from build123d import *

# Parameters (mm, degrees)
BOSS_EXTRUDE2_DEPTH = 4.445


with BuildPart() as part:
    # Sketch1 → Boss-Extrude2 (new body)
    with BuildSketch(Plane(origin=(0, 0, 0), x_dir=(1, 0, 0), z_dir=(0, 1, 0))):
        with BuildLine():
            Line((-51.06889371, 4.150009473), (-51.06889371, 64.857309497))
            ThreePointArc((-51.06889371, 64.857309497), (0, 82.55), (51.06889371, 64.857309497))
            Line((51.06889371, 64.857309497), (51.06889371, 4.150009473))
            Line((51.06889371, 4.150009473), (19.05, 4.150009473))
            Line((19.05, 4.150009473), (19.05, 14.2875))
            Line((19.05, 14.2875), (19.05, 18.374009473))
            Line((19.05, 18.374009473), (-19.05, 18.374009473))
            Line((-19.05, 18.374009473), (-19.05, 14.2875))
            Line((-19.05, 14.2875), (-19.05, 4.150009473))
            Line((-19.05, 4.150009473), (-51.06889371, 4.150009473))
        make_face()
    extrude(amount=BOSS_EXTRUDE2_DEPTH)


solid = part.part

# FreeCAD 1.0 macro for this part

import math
import FreeCAD as App
import Part
import Sketcher

V = App.Vector
Q = App.Units.Quantity

doc = App.newDocument("Part")
body = doc.addObject("PartDesign::Body", "Body")

# Sketch on XZ plane
sketch1 = body.newObject("Sketcher::SketchObject", "Sketch")
sketch1.AttachmentSupport = (doc.getObject("XZ_Plane"), [""])
sketch1.MapMode = "FlatFace"
sketch1.addGeometry([
    Part.LineSegment(V(-51, -65, 0), V(-51, -4, 0)),  # 0
    Part.LineSegment(V(-51, -4, 0), V(-19, -4, 0)),  # 1
    Part.LineSegment(V(-19, -4, 0), V(-19, -18, 0)),  # 2
    Part.LineSegment(V(-19, -18, 0), V(19, -18, 0)),  # 3
    Part.LineSegment(V(19, -18, 0), V(19, -4, 0)),  # 4
    Part.LineSegment(V(19, -4, 0), V(51, -4, 0)),  # 5
    Part.LineSegment(V(51, -4, 0), V(51, -65, 0)),  # 6
    Part.ArcOfCircle(Part.Circle(V(0, 0, 0), V(0, 0, 1), 83), math.radians(-128), math.radians(-52)),  # 7
], False)
sketch1.addConstraint([
    Sketcher.Constraint("Coincident", 0, 2, 1, 1),
    Sketcher.Constraint("Coincident", 1, 2, 2, 1),
    Sketcher.Constraint("Coincident", 2, 2, 3, 1),
    Sketcher.Constraint("Coincident", 3, 2, 4, 1),
    Sketcher.Constraint("Coincident", 4, 2, 5, 1),
    Sketcher.Constraint("Coincident", 5, 2, 6, 1),
    Sketcher.Constraint("Coincident", 6, 2, 7, 2),
    Sketcher.Constraint("Coincident", 7, 1, 0, 1),
    Sketcher.Constraint("Vertical", 0),
    Sketcher.Constraint("Horizontal", 1),
    Sketcher.Constraint("Vertical", 2),
    Sketcher.Constraint("Horizontal", 3),
    Sketcher.Constraint("Vertical", 4),
    Sketcher.Constraint("Horizontal", 5),
    Sketcher.Constraint("Vertical", 6),
    Sketcher.Constraint("Coincident", 7, 3, -1, 1),
    Sketcher.Constraint("Symmetric", 1, 2, 4, 2, -2),
    Sketcher.Constraint("Horizontal", 6, 2, 7, 1),
    Sketcher.Constraint("Radius", 7, Q("3.25 in")),
    Sketcher.Constraint("DistanceX", 3, 1, 3, 2, Q("1.5 in")),
    Sketcher.Constraint("DistanceY", 2, 2, 2, 1, Q("0.56 in")),
    Sketcher.Constraint("DistanceY", 0, 1, 0, 2, 60.7073),
    Sketcher.Constraint("DistanceX", 1, 1, 1, 2, 32.018894),
])
pad1 = body.newObject("PartDesign::Pad", "Pad")
pad1.Profile = sketch1
pad1.Length = Q("0.175 in")
pad1.Reversed = True

doc.recompute()
